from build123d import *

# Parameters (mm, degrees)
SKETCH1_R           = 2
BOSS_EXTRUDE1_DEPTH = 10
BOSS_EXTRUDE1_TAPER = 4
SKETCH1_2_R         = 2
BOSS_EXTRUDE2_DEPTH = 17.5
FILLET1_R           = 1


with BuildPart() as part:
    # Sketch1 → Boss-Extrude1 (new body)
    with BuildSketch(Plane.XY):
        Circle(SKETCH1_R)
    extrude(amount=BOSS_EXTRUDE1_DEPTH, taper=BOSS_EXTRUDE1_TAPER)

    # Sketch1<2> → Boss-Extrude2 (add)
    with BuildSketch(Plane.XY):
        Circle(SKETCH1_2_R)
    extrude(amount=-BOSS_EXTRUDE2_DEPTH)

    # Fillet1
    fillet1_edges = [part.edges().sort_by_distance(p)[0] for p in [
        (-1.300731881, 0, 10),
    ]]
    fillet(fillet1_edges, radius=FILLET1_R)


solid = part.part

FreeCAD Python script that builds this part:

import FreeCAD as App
import Part
import Sketcher
Q = App.Units.Quantity


def edges_at(feature, points):
    """Names of the edges that pass closest to the given points."""
    edges = feature.Shape.Edges
    near = lambda p: min(range(len(edges)), key=lambda i: edges[i].distToShape(Part.Vertex(*p))[0])
    return sorted({f"Edge{near(p) + 1}" for p in points})

doc = App.newDocument("Part")
params = doc.addObject("Spreadsheet::Sheet", "Params")
for row, (alias, value) in enumerate([
    ("sketch1_diameter", "4 mm"),
    ("pad1_length", "10 mm"),
    ("pad1_taper", "-4 deg"),
    ("sketch2_diameter", "4 mm"),
    ("pad2_length", "17.5 mm"),
    ("fillet_radius", "1 mm"),
], start=1):
    params.set(f"A{row}", alias)
    params.set(f"B{row}", "=" + value)
    params.setAlias(f"B{row}", alias)

body = doc.addObject("PartDesign::Body", "Body")

# Sketch on XY plane
sketch1 = body.newObject("Sketcher::SketchObject", "Sketch")
sketch1.AttachmentSupport = (doc.getObject("XY_Plane"), [""])
sketch1.MapMode = "FlatFace"
sketch1.addGeometry(Part.Circle(App.Vector(0, 0, 0), App.Vector(0, 0, 1), 2), False)
sketch1.addConstraint([
    Sketcher.Constraint("Coincident", 0, 3, -1, 1),
    Sketcher.Constraint("Diameter", 0, Q("4 mm")),
])
sketch1.setExpression("Constraints[1]", "Params.sketch1_diameter")
pad1 = body.newObject("PartDesign::Pad", "Pad")
pad1.Profile = sketch1
pad1.setExpression("Length", "Params.pad1_length")
pad1.setExpression("TaperAngle", "Params.pad1_taper")

# Sketch on XY plane
sketch2 = body.newObject("Sketcher::SketchObject", "Sketch001")
sketch2.AttachmentSupport = (doc.getObject("XY_Plane"), [""])
sketch2.MapMode = "FlatFace"
sketch2.addGeometry(Part.Circle(App.Vector(0, 0, 0), App.Vector(0, 0, 1), 2), False)
sketch2.addConstraint([
    Sketcher.Constraint("Coincident", 0, 3, -1, 1),
    Sketcher.Constraint("Diameter", 0, Q("4 mm")),
])
sketch2.setExpression("Constraints[1]", "Params.sketch2_diameter")
pad2 = body.newObject("PartDesign::Pad", "Pad001")
pad2.Profile = sketch2
pad2.setExpression("Length", "Params.pad2_length")
pad2.Reversed = True
doc.recompute()

fillet = body.newObject("PartDesign::Fillet", "Fillet")
fillet.Base = (pad2, edges_at(pad2, [(-1.301, 0, 10)]))
fillet.setExpression("Radius", "Params.fillet_radius")

doc.recompute()
